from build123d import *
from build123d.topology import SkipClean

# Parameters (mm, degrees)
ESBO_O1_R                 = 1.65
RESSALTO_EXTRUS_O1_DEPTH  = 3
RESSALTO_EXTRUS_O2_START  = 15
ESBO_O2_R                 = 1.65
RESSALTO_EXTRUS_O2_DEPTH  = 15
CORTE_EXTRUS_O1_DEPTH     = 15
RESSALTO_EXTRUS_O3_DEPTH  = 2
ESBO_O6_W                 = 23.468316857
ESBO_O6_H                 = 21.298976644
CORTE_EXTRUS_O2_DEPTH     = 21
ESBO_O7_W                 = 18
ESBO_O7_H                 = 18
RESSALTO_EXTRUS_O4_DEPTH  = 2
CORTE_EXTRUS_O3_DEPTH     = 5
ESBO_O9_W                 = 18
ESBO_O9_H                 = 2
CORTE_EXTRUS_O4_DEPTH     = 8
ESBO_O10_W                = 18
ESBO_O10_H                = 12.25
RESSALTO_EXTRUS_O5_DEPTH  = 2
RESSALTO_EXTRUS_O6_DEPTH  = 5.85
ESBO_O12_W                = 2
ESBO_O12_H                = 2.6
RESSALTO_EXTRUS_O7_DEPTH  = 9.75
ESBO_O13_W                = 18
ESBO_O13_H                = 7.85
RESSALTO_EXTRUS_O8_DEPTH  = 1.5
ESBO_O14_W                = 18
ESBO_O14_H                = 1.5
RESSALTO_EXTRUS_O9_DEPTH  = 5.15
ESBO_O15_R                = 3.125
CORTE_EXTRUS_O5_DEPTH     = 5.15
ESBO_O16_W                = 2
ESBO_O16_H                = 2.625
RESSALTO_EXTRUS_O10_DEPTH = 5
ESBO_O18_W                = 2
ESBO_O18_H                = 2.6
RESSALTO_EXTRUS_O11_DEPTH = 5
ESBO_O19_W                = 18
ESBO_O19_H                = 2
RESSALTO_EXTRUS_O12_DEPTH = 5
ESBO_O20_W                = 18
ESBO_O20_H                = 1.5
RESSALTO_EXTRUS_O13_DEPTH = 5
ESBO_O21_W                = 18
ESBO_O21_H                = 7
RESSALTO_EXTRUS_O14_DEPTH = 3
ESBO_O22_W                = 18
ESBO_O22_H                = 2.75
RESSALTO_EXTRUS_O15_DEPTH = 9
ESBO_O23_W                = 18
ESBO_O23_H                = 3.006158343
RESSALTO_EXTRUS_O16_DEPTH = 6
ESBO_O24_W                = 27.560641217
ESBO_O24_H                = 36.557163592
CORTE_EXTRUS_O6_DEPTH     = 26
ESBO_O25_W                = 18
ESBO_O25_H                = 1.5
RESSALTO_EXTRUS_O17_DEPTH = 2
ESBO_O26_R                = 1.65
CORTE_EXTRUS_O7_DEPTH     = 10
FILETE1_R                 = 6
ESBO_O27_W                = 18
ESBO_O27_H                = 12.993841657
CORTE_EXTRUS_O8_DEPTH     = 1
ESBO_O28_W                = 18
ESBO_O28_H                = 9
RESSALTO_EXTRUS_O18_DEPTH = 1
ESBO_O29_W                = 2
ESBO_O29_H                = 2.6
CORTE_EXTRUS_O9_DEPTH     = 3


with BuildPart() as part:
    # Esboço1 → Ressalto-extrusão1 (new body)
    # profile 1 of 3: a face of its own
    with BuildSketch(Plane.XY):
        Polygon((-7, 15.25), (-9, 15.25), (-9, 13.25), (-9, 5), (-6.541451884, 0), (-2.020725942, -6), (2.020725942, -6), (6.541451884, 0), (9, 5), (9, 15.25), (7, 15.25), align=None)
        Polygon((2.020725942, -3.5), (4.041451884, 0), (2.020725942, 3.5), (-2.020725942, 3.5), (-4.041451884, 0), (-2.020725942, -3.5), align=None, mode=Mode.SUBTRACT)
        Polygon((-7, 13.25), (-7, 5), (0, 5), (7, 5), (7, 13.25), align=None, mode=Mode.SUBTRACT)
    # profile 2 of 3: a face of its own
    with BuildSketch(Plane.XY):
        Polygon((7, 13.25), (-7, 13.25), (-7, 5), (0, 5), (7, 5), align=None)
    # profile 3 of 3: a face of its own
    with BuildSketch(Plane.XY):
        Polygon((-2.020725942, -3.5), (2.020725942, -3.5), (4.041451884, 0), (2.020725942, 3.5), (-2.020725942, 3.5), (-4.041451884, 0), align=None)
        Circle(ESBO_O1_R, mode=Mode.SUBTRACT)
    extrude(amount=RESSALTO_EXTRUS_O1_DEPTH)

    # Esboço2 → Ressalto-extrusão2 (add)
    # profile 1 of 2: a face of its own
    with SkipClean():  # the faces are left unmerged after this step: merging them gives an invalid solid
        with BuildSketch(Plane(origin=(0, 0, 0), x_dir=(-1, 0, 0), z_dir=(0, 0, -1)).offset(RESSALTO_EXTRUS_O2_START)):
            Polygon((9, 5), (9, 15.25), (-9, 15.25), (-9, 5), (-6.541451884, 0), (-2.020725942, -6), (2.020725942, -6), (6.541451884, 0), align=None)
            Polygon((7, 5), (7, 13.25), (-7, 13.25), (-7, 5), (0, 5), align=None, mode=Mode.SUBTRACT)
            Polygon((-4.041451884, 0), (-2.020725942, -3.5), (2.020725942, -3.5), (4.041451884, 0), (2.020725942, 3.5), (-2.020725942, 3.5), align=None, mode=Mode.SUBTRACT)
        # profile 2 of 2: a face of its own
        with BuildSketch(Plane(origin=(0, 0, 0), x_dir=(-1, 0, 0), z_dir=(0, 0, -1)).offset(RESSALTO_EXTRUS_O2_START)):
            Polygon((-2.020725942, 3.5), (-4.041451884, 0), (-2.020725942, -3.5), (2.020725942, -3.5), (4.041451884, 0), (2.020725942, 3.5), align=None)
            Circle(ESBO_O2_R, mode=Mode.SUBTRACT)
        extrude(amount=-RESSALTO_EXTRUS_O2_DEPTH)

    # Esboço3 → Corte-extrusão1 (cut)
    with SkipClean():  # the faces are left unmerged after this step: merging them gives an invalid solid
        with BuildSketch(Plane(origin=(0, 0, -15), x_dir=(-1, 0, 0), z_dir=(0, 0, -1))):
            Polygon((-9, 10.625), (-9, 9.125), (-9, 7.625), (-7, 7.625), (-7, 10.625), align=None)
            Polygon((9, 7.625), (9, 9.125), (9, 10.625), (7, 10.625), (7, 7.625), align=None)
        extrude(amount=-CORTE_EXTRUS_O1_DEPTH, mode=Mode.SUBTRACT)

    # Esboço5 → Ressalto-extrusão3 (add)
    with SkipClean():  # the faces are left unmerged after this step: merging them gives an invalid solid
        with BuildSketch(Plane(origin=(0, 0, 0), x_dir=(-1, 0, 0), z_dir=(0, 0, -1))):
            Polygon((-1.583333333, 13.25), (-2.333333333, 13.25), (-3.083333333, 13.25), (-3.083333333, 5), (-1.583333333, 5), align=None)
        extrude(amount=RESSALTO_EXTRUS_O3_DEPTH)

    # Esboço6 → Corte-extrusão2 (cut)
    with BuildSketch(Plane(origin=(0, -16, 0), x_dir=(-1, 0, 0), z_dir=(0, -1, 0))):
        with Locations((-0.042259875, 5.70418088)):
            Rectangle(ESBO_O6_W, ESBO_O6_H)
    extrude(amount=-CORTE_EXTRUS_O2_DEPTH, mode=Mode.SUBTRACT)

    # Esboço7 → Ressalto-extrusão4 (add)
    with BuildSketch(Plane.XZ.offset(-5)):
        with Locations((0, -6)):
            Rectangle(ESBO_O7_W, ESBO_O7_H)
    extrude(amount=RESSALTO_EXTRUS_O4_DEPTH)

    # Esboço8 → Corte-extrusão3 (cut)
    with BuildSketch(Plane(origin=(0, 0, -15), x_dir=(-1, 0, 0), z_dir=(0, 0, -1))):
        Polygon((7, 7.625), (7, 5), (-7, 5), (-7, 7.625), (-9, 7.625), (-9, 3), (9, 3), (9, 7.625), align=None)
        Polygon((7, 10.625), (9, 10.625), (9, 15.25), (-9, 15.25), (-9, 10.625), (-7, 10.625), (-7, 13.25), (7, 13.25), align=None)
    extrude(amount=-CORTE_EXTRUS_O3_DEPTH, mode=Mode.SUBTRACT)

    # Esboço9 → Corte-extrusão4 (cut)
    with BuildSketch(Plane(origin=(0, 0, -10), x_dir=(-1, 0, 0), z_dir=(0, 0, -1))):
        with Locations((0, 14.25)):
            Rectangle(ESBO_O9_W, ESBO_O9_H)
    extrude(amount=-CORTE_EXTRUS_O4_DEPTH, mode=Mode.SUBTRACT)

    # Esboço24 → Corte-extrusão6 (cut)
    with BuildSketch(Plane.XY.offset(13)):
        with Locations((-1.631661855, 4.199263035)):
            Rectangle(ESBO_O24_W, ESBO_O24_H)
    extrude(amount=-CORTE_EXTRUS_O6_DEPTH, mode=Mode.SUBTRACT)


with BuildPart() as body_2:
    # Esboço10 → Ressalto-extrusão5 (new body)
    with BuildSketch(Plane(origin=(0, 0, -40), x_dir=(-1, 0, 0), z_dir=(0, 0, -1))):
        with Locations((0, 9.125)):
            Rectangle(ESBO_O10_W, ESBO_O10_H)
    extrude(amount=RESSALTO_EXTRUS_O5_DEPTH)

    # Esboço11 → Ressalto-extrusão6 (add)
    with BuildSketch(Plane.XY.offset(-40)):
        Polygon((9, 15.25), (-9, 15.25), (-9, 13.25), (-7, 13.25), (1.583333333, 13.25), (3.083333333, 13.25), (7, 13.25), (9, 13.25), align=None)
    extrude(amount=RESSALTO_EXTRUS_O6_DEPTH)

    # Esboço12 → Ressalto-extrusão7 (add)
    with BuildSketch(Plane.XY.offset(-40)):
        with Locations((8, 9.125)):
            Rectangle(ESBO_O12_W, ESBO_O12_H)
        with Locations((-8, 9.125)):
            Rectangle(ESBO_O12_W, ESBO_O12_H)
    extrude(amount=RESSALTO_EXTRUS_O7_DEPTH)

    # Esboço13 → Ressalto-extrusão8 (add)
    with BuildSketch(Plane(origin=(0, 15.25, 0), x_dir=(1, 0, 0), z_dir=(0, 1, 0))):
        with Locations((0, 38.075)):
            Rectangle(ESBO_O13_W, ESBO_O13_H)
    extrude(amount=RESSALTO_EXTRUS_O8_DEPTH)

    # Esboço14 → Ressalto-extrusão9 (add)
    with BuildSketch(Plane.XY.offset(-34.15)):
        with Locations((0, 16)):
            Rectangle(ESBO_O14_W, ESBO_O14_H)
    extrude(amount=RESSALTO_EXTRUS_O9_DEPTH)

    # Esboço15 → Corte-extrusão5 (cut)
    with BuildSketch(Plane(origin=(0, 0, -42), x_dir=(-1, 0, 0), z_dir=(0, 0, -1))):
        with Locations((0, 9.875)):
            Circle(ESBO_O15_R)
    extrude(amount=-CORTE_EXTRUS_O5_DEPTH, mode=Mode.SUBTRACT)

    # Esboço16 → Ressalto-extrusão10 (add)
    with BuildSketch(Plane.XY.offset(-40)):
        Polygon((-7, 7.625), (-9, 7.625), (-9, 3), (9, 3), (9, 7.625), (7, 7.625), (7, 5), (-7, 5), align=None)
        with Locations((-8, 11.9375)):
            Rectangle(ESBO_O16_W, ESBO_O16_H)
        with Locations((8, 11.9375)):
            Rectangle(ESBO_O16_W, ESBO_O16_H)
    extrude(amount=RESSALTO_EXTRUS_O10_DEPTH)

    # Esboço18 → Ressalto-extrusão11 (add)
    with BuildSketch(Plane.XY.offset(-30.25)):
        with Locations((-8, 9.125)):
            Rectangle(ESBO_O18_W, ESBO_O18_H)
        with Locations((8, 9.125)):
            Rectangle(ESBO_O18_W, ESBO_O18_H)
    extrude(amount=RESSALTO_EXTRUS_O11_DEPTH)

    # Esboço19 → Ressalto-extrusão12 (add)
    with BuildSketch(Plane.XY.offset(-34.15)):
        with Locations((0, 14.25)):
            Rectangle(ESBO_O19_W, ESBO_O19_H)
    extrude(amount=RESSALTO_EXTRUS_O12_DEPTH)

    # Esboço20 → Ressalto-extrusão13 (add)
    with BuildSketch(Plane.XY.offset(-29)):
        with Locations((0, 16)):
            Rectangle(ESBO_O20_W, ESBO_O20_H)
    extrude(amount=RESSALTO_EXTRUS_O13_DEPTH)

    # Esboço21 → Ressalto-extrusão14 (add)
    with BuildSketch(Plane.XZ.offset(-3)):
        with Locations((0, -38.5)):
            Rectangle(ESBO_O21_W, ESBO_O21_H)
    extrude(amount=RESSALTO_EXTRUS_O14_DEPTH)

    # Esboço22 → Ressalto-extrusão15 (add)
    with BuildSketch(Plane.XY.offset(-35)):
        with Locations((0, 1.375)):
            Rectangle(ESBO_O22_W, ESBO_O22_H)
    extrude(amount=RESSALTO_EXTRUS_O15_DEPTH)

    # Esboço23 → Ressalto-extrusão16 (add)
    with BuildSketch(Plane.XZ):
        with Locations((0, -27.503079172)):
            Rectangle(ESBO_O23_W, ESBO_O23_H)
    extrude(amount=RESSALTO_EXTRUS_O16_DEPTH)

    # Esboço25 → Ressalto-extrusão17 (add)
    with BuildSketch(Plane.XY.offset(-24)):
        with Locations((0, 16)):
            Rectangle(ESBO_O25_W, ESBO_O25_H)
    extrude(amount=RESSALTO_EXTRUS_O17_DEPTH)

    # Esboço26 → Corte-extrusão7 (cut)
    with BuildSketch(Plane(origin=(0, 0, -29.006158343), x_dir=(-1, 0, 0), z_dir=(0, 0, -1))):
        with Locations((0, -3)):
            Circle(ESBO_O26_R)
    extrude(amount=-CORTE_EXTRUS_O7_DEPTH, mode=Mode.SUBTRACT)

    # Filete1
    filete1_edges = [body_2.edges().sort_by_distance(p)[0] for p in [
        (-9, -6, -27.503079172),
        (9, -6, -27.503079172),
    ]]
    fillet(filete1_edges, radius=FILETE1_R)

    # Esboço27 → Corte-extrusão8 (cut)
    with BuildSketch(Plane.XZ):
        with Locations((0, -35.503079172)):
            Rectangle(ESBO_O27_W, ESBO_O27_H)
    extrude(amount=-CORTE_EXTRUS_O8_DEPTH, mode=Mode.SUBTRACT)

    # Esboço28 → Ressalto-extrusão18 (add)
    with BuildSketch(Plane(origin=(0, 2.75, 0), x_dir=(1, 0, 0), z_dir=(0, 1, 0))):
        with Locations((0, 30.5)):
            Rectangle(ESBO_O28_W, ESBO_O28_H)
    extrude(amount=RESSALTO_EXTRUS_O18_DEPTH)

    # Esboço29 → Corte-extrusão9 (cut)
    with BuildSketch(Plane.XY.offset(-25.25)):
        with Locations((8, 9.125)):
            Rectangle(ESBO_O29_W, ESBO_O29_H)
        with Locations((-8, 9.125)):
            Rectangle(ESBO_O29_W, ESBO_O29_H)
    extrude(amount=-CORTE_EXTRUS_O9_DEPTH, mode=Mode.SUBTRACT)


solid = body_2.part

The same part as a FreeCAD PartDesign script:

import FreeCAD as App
import Part
import Sketcher
Q = App.Units.Quantity


def edges_at(feature, points):
    """Names of the edges that pass closest to the given points."""
    edges = feature.Shape.Edges
    near = lambda p: min(range(len(edges)), key=lambda i: edges[i].distToShape(Part.Vertex(*p))[0])
    return sorted({f"Edge{near(p) + 1}" for p in points})


def add_polygon(sketch, points):
    """Adds a closed chain of lines whose ends are joined by coincident constraints."""
    first, n = sketch.GeometryCount, len(points)
    for a, b in zip(points, points[1:] + points[:1]):
        sketch.addGeometry(Part.LineSegment(App.Vector(*a, 0), App.Vector(*b, 0)), False)
    for i in range(n):
        sketch.addConstraint(Sketcher.Constraint("Coincident", first + i, 2, first + (i + 1) % n, 1))

doc = App.newDocument("Part")
body = doc.addObject("PartDesign::Body", "Body")

# Sketch on XY plane
sketch1 = body.newObject("Sketcher::SketchObject", "Sketch")
sketch1.AttachmentSupport = (doc.getObject("XY_Plane"), [""])
sketch1.MapMode = "FlatFace"
add_polygon(sketch1, [(-9, 15.25), (-9, 5), (-6.541452, 0), (-2.020726, -6), (2.020726, -6), (6.541452, 0), (9, 5), (9, 15.25)])  # lines 0-7
sketch1.addGeometry(Part.Circle(App.Vector(0, 0, 0), App.Vector(0, 0, 1), 1.65), False)  # 8
sketch1.addConstraint([
    Sketcher.Constraint("Vertical", 0),
    Sketcher.Constraint("Horizontal", 3),
    Sketcher.Constraint("Vertical", 6),
    Sketcher.Constraint("Horizontal", 7),
    Sketcher.Constraint("Coincident", 8, 3, -1, 1),
    Sketcher.Constraint("Symmetric", 1, 2, 4, 2, -1, 1),
    Sketcher.Constraint("Symmetric", 0, 2, 5, 2, -2),
    Sketcher.Constraint("PointOnObject", 1, 2, -1),
    Sketcher.Constraint("Equal", 2, 4),
    Sketcher.Constraint("Diameter", 8, Q("3.3 mm")),
    Sketcher.Constraint("DistanceX", 7, 2, 7, 1, Q("18 mm")),
    Sketcher.Constraint("DistanceY", -1, 1, 0, 2, Q("5 mm")),
    Sketcher.Constraint("DistanceY", 2, 2, -1, 1, Q("6 mm")),
    Sketcher.Constraint("DistanceY", 0, 2, 0, 1, Q("10.25 mm")),
    Sketcher.Constraint("DistanceX", 3, 1, 3, 2, Q("4.041452 mm")),
    Sketcher.Constraint("DistanceX", 1, 2, -1, 1, Q("6.541452 mm")),
])
pad1 = body.newObject("PartDesign::Pad", "Pad")
pad1.Profile = sketch1
pad1.Length = 3

# Sketch on XY plane
sketch2 = body.newObject("Sketcher::SketchObject", "Sketch001")
sketch2.AttachmentSupport = (doc.getObject("XY_Plane"), [""])
sketch2.MapMode = "FlatFace"
sketch2.AttachmentOffset = App.Placement(App.Vector(0, 0, -15), App.Rotation())
add_polygon(sketch2, [(-9, 5), (-9, 15.25), (9, 15.25), (9, 5), (6.541452, 0), (2.020726, -6), (-2.020726, -6), (-6.541452, 0)])  # lines 0-7
add_polygon(sketch2, [(-7, 13.25), (-7, 5), (7, 5), (7, 13.25)])  # lines 8-11
sketch2.addGeometry(Part.Circle(App.Vector(0, 0, 0), App.Vector(0, 0, 1), 1.65), False)  # 12
sketch2.addConstraint([
    Sketcher.Constraint("Vertical", 0),
    Sketcher.Constraint("Horizontal", 1),
    Sketcher.Constraint("Vertical", 2),
    Sketcher.Constraint("Horizontal", 5),
    Sketcher.Constraint("Vertical", 8),
    Sketcher.Constraint("Horizontal", 9),
    Sketcher.Constraint("Vertical", 10),
    Sketcher.Constraint("Horizontal", 11),
    Sketcher.Constraint("Coincident", 12, 3, -1, 1),
    Sketcher.Constraint("Symmetric", 3, 2, 6, 2, -1, 1),
    Sketcher.Constraint("Symmetric", 2, 2, 7, 2, -2),
    Sketcher.Constraint("PointOnObject", 3, 2, -1),
    Sketcher.Constraint("Horizontal", 7, 2, 8, 2),
    Sketcher.Constraint("Equal", 4, 6),
    Sketcher.Constraint("Diameter", 12, Q("3.3 mm")),
    Sketcher.Constraint("DistanceX", 1, 1, 1, 2, Q("18 mm")),
    Sketcher.Constraint("DistanceX", 9, 1, 9, 2, Q("14 mm")),
    Sketcher.Constraint("DistanceY", -1, 1, 2, 2, Q("5 mm")),
    Sketcher.Constraint("DistanceY", 4, 2, -1, 1, Q("6 mm")),
    Sketcher.Constraint("DistanceX", 8, 2, -1, 1, Q("7 mm")),
    Sketcher.Constraint("DistanceY", 10, 2, 1, 2, Q("2 mm")),
    Sketcher.Constraint("DistanceY", 0, 1, 0, 2, Q("10.25 mm")),
    Sketcher.Constraint("DistanceX", 5, 2, 5, 1, Q("4.041452 mm")),
    Sketcher.Constraint("DistanceX", -1, 1, 3, 2, Q("6.541452 mm")),
])
pad2 = body.newObject("PartDesign::Pad", "Pad001")
pad2.Profile = sketch2
pad2.Length = 15

# Sketch on XY plane
sketch3 = body.newObject("Sketcher::SketchObject", "Sketch002")
sketch3.AttachmentSupport = (doc.getObject("XY_Plane"), [""])
sketch3.MapMode = "FlatFace"
sketch3.AttachmentOffset = App.Placement(App.Vector(0, 0, -15), App.Rotation())
add_polygon(sketch3, [(9, 10.625), (9, 7.625), (7, 7.625), (7, 10.625)])  # lines 0-3
add_polygon(sketch3, [(-9, 7.625), (-9, 9.125), (-9, 10.625), (-7, 10.625), (-7, 7.625)])  # lines 4-8
sketch3.addConstraint([
    Sketcher.Constraint("Vertical", 0),
    Sketcher.Constraint("Horizontal", 1),
    Sketcher.Constraint("Vertical", 2),
    Sketcher.Constraint("Horizontal", 3),
    Sketcher.Constraint("Vertical", 4),
    Sketcher.Constraint("Vertical", 5),
    Sketcher.Constraint("Horizontal", 6),
    Sketcher.Constraint("Vertical", 7),
    Sketcher.Constraint("Horizontal", 8),
    Sketcher.Constraint("Symmetric", 3, 2, 5, 2, -2),
    Sketcher.Constraint("Symmetric", 1, 2, 7, 2, -2),
    Sketcher.Constraint("Equal", 4, 5),
    Sketcher.Constraint("DistanceX", 1, 2, 1, 1, Q("2 mm")),
    Sketcher.Constraint("DistanceY", 0, 2, 0, 1, Q("3 mm")),
    Sketcher.Constraint("DistanceX", -1, 1, 0, 2, Q("9 mm")),
    Sketcher.Constraint("DistanceY", -1, 1, 0, 2, Q("7.625 mm")),
])
pocket1 = body.newObject("PartDesign::Pocket", "Pocket")
pocket1.Profile = sketch3
pocket1.Length = 15
pocket1.Reversed = True

# Sketch on XY plane
sketch4 = body.newObject("Sketcher::SketchObject", "Sketch003")
sketch4.AttachmentSupport = (doc.getObject("XY_Plane"), [""])
sketch4.MapMode = "FlatFace"
add_polygon(sketch4, [(1.583333, 13.25), (3.083333, 13.25), (3.083333, 5), (1.583333, 5)])  # lines 0-3
sketch4.addConstraint([
    Sketcher.Constraint("Horizontal", 0),
    Sketcher.Constraint("Vertical", 1),
    Sketcher.Constraint("Horizontal", 2),
    Sketcher.Constraint("Vertical", 3),
    Sketcher.Constraint("DistanceX", 0, 1, 0, 2, Q("1.5 mm")),
    Sketcher.Constraint("DistanceY", -1, 1, 1, 2, Q("5 mm")),
    Sketcher.Constraint("DistanceY", 1, 2, 1, 1, Q("8.25 mm")),
    Sketcher.Constraint("DistanceX", -1, 1, 0, 2, Q("3.083333 mm")),
])
pad3 = body.newObject("PartDesign::Pad", "Pad002")
pad3.Profile = sketch4
pad3.Length = 2
pad3.Reversed = True

# Sketch on XZ plane
sketch5 = body.newObject("Sketcher::SketchObject", "Sketch004")
sketch5.AttachmentSupport = (doc.getObject("XZ_Plane"), [""])
sketch5.MapMode = "FlatFace"
sketch5.AttachmentOffset = App.Placement(App.Vector(0, 0, 16), App.Rotation())
add_polygon(sketch5, [(11.776418, -16.353669), (11.776418, 4.945307), (-11.691899, 4.945307), (-11.691899, -16.353669)])  # lines 0-3
sketch5.addConstraint([
    Sketcher.Constraint("Vertical", 0),
    Sketcher.Constraint("Horizontal", 1),
    Sketcher.Constraint("Vertical", 2),
    Sketcher.Constraint("Horizontal", 3),
    Sketcher.Constraint("DistanceX", 1, 2, -1, 1, Q("11.691899 mm")),
    Sketcher.Constraint("DistanceX", 1, 2, 1, 1, Q("23.468317 mm")),
    Sketcher.Constraint("DistanceY", 0, 1, 0, 2, Q("21.298977 mm")),
    Sketcher.Constraint("DistanceY", 2, 2, -1, 1, Q("16.353669 mm")),
])
pocket2 = body.newObject("PartDesign::Pocket", "Pocket001")
pocket2.Profile = sketch5
pocket2.Length = 21

# Sketch on XZ plane
sketch6 = body.newObject("Sketcher::SketchObject", "Sketch005")
sketch6.AttachmentSupport = (doc.getObject("XZ_Plane"), [""])
sketch6.MapMode = "FlatFace"
sketch6.AttachmentOffset = App.Placement(App.Vector(0, 0, -5), App.Rotation())
add_polygon(sketch6, [(-9, 3), (-9, -15), (9, -15), (9, 3)])  # lines 0-3
sketch6.addConstraint([
    Sketcher.Constraint("Vertical", 0),
    Sketcher.Constraint("Horizontal", 1),
    Sketcher.Constraint("Vertical", 2),
    Sketcher.Constraint("Horizontal", 3),
    Sketcher.Constraint("Equal", 3, 0),
    Sketcher.Constraint("DistanceX", 1, 1, 1, 2, Q("18 mm")),
    Sketcher.Constraint("DistanceX", 0, 2, -1, 1, Q("9 mm")),
    Sketcher.Constraint("DistanceY", 0, 2, -1, 1, Q("15 mm")),
])
pad4 = body.newObject("PartDesign::Pad", "Pad003")
pad4.Profile = sketch6
pad4.Length = 2

# Sketch on XY plane
sketch7 = body.newObject("Sketcher::SketchObject", "Sketch006")
sketch7.AttachmentSupport = (doc.getObject("XY_Plane"), [""])
sketch7.MapMode = "FlatFace"
sketch7.AttachmentOffset = App.Placement(App.Vector(0, 0, -15), App.Rotation())
add_polygon(sketch7, [(-7, 7.625), (-7, 5), (7, 5), (7, 7.625), (9, 7.625), (9, 3), (-9, 3), (-9, 7.625)])  # lines 0-7
add_polygon(sketch7, [(-7, 10.625), (-9, 10.625), (-9, 15.25), (9, 15.25), (9, 10.625), (7, 10.625), (7, 13.25), (-7, 13.25)])  # lines 8-15
sketch7.addConstraint([
    Sketcher.Constraint("Vertical", 0),
    Sketcher.Constraint("Horizontal", 1),
    Sketcher.Constraint("Vertical", 2),
    Sketcher.Constraint("Horizontal", 3),
    Sketcher.Constraint("Vertical", 4),
    Sketcher.Constraint("Horizontal", 5),
    Sketcher.Constraint("Vertical", 6),
    Sketcher.Constraint("Horizontal", 7),
    Sketcher.Constraint("Horizontal", 8),
    Sketcher.Constraint("Vertical", 9),
    Sketcher.Constraint("Horizontal", 10),
    Sketcher.Constraint("Vertical", 11),
    Sketcher.Constraint("Horizontal", 12),
    Sketcher.Constraint("Vertical", 13),
    Sketcher.Constraint("Horizontal", 14),
    Sketcher.Constraint("Vertical", 15),
    Sketcher.Constraint("Symmetric", 3, 2, 6, 2, -2),
    Sketcher.Constraint("Symmetric", 8, 2, 11, 2, -2),
    Sketcher.Constraint("Vertical", 6, 2, 8, 2),
    Sketcher.Constraint("Vertical", 2, 2, 12, 2),
    Sketcher.Constraint("Vertical", 7, 2, 14, 2),
    Sketcher.Constraint("Equal", 3, 7),
    Sketcher.Constraint("Equal", 6, 9),
    Sketcher.Constraint("Equal", 2, 13),
    Sketcher.Constraint("DistanceX", 1, 1, 1, 2, Q("14 mm")),
    Sketcher.Constraint("DistanceX", 3, 1, 3, 2, Q("2 mm")),
    Sketcher.Constraint("DistanceY", -1, 1, 0, 2, Q("5 mm")),
    Sketcher.Constraint("DistanceY", -1, 1, 4, 2, Q("3 mm")),
    Sketcher.Constraint("DistanceY", 6, 2, 8, 2, Q("3 mm")),
    Sketcher.Constraint("DistanceY", 0, 2, 0, 1, Q("2.625 mm")),
])
pocket3 = body.newObject("PartDesign::Pocket", "Pocket002")
pocket3.Profile = sketch7
pocket3.Length = 5
pocket3.Reversed = True

# Sketch on XY plane
sketch8 = body.newObject("Sketcher::SketchObject", "Sketch007")
sketch8.AttachmentSupport = (doc.getObject("XY_Plane"), [""])
sketch8.MapMode = "FlatFace"
sketch8.AttachmentOffset = App.Placement(App.Vector(0, 0, -10), App.Rotation())
add_polygon(sketch8, [(9, 15.25), (9, 13.25), (-9, 13.25), (-9, 15.25)])  # lines 0-3
sketch8.addConstraint([
    Sketcher.Constraint("Vertical", 0),
    Sketcher.Constraint("Horizontal", 1),
    Sketcher.Constraint("Vertical", 2),
    Sketcher.Constraint("Horizontal", 3),
    Sketcher.Constraint("DistanceX", 1, 2, 1, 1, Q("18 mm")),
    Sketcher.Constraint("DistanceY", 0, 2, 0, 1, Q("2 mm")),
    Sketcher.Constraint("DistanceX", -1, 1, 0, 2, Q("9 mm")),
    Sketcher.Constraint("DistanceY", -1, 1, 0, 2, Q("13.25 mm")),
])
pocket4 = body.newObject("PartDesign::Pocket", "Pocket003")
pocket4.Profile = sketch8
pocket4.Length = 8
pocket4.Reversed = True

# Sketch on XY plane
sketch9 = body.newObject("Sketcher::SketchObject", "Sketch008")
sketch9.AttachmentSupport = (doc.getObject("XY_Plane"), [""])
sketch9.MapMode = "FlatFace"
sketch9.AttachmentOffset = App.Placement(App.Vector(0, 0, 13), App.Rotation())
add_polygon(sketch9, [(-15.411982, 22.477845), (-15.411982, -14.079319), (12.148659, -14.079319), (12.148659, 22.477845)])  # lines 0-3
sketch9.addConstraint([
    Sketcher.Constraint("Vertical", 0),
    Sketcher.Constraint("Horizontal", 1),
    Sketcher.Constraint("Vertical", 2),
    Sketcher.Constraint("Horizontal", 3),
    Sketcher.Constraint("DistanceX", 1, 1, 1, 2, Q("27.560641 mm")),
    Sketcher.Constraint("DistanceY", 0, 2, 0, 1, Q("36.557164 mm")),
    Sketcher.Constraint("DistanceY", 0, 2, -1, 1, Q("14.079319 mm")),
    Sketcher.Constraint("DistanceX", -1, 1, 1, 2, Q("12.148659 mm")),
])
pocket5 = body.newObject("PartDesign::Pocket", "Pocket004")
pocket5.Profile = sketch9
pocket5.Length = 26
body2 = doc.addObject("PartDesign::Body", "Body001")

# Sketch on XY plane
sketch10 = body2.newObject("Sketcher::SketchObject", "Sketch009")
sketch10.AttachmentSupport = (doc.getObject("XY_Plane001"), [""])
sketch10.MapMode = "FlatFace"
sketch10.AttachmentOffset = App.Placement(App.Vector(0, 0, -40), App.Rotation())
add_polygon(sketch10, [(9, 15.25), (9, 3), (-9, 3), (-9, 15.25)])  # lines 0-3
sketch10.addConstraint([
    Sketcher.Constraint("Vertical", 0),
    Sketcher.Constraint("Horizontal", 1),
    Sketcher.Constraint("Vertical", 2),
    Sketcher.Constraint("Horizontal", 3),
    Sketcher.Constraint("DistanceX", 1, 2, 1, 1, Q("18 mm")),
    Sketcher.Constraint("DistanceX", -1, 1, 0, 2, Q("9 mm")),
    Sketcher.Constraint("DistanceY", -1, 1, 0, 2, Q("3 mm")),
    Sketcher.Constraint("DistanceY", 0, 2, 0, 1, Q("12.25 mm")),
])
pad5 = body2.newObject("PartDesign::Pad", "Pad004")
pad5.Profile = sketch10
pad5.Length = 2
pad5.Reversed = True

# Sketch on XY plane
sketch11 = body2.newObject("Sketcher::SketchObject", "Sketch010")
sketch11.AttachmentSupport = (doc.getObject("XY_Plane001"), [""])
sketch11.MapMode = "FlatFace"
sketch11.AttachmentOffset = App.Placement(App.Vector(0, 0, -40), App.Rotation())
add_polygon(sketch11, [(9, 15.25), (-9, 15.25), (-9, 13.25), (9, 13.25)])  # lines 0-3
sketch11.addConstraint([
    Sketcher.Constraint("Horizontal", 0),
    Sketcher.Constraint("Vertical", 1),
    Sketcher.Constraint("Horizontal", 2),
    Sketcher.Constraint("Vertical", 3),
    Sketcher.Constraint("DistanceX", 0, 2, 0, 1, Q("18 mm")),
    Sketcher.Constraint("DistanceY", 1, 2, 1, 1, Q("2 mm")),
    Sketcher.Constraint("DistanceX", 0, 2, -1, 1, Q("9 mm")),
    Sketcher.Constraint("DistanceY", -1, 1, 0, 2, Q("15.25 mm")),
])
pad6 = body2.newObject("PartDesign::Pad", "Pad005")
pad6.Profile = sketch11
pad6.Length = 5.85

# Sketch on XY plane
sketch12 = body2.newObject("Sketcher::SketchObject", "Sketch011")
sketch12.AttachmentSupport = (doc.getObject("XY_Plane001"), [""])
sketch12.MapMode = "FlatFace"
sketch12.AttachmentOffset = App.Placement(App.Vector(0, 0, -40), App.Rotation())
add_polygon(sketch12, [(7, 10.425), (7, 7.825), (9, 7.825), (9, 10.425)])  # lines 0-3
add_polygon(sketch12, [(-9, 10.425), (-9, 7.825), (-7, 7.825), (-7, 10.425)])  # lines 4-7
sketch12.addConstraint([
    Sketcher.Constraint("Vertical", 0),
    Sketcher.Constraint("Horizontal", 1),
    Sketcher.Constraint("Vertical", 2),
    Sketcher.Constraint("Horizontal", 3),
    Sketcher.Constraint("Vertical", 4),
    Sketcher.Constraint("Horizontal", 5),
    Sketcher.Constraint("Vertical", 6),
    Sketcher.Constraint("Horizontal", 7),
    Sketcher.Constraint("Symmetric", 1, 2, 4, 2, -2),
    Sketcher.Constraint("Symmetric", 3, 2, 6, 2, -2),
    Sketcher.Constraint("DistanceX", 1, 1, 1, 2, Q("2 mm")),
    Sketcher.Constraint("DistanceY", 0, 2, 0, 1, Q("2.6 mm")),
    Sketcher.Constraint("DistanceX", -1, 1, 0, 2, Q("7 mm")),
    Sketcher.Constraint("DistanceY", -1, 1, 0, 2, Q("7.825 mm")),
])
pad7 = body2.newObject("PartDesign::Pad", "Pad006")
pad7.Profile = sketch12
pad7.Length = 9.75

# Sketch on XZ plane
sketch13 = body2.newObject("Sketcher::SketchObject", "Sketch012")
sketch13.AttachmentSupport = (doc.getObject("XZ_Plane001"), [""])
sketch13.MapMode = "FlatFace"
sketch13.AttachmentOffset = App.Placement(App.Vector(0, 0, -15.25), App.Rotation())
add_polygon(sketch13, [(-9, -42), (-9, -34.15), (9, -34.15), (9, -42)])  # lines 0-3
sketch13.addConstraint([
    Sketcher.Constraint("Vertical", 0),
    Sketcher.Constraint("Horizontal", 1),
    Sketcher.Constraint("Vertical", 2),
    Sketcher.Constraint("Horizontal", 3),
    Sketcher.Constraint("DistanceX", 1, 1, 1, 2, Q("18 mm")),
    Sketcher.Constraint("DistanceX", 0, 2, -1, 1, Q("9 mm")),
    Sketcher.Constraint("DistanceY", 2, 2, -1, 1, Q("42 mm")),
    Sketcher.Constraint("DistanceY", 0, 1, 0, 2, Q("7.85 mm")),
])
pad8 = body2.newObject("PartDesign::Pad", "Pad007")
pad8.Profile = sketch13
pad8.Length = 1.5
pad8.Reversed = True

# Sketch on XY plane
sketch14 = body2.newObject("Sketcher::SketchObject", "Sketch013")
sketch14.AttachmentSupport = (doc.getObject("XY_Plane001"), [""])
sketch14.MapMode = "FlatFace"
sketch14.AttachmentOffset = App.Placement(App.Vector(0, 0, -34.15), App.Rotation())
add_polygon(sketch14, [(-9, 16.75), (-9, 15.25), (9, 15.25), (9, 16.75)])  # lines 0-3
sketch14.addConstraint([
    Sketcher.Constraint("Vertical", 0),
    Sketcher.Constraint("Horizontal", 1),
    Sketcher.Constraint("Vertical", 2),
    Sketcher.Constraint("Horizontal", 3),
    Sketcher.Constraint("DistanceX", 1, 1, 1, 2, Q("18 mm")),
    Sketcher.Constraint("DistanceY", 0, 2, 0, 1, Q("1.5 mm")),
    Sketcher.Constraint("DistanceX", 0, 2, -1, 1, Q("9 mm")),
    Sketcher.Constraint("DistanceY", -1, 1, 0, 2, Q("15.25 mm")),
])
pad9 = body2.newObject("PartDesign::Pad", "Pad008")
pad9.Profile = sketch14
pad9.Length = 5.15

# Sketch on XY plane
sketch15 = body2.newObject("Sketcher::SketchObject", "Sketch014")
sketch15.AttachmentSupport = (doc.getObject("XY_Plane001"), [""])
sketch15.MapMode = "FlatFace"
sketch15.AttachmentOffset = App.Placement(App.Vector(0, 0, -42), App.Rotation())
sketch15.addGeometry(Part.Circle(App.Vector(0, 9.875, 0), App.Vector(0, 0, 1), 3.125), False)
sketch15.addConstraint([
    Sketcher.Constraint("PointOnObject", 0, 3, -2),
    Sketcher.Constraint("Diameter", 0, Q("6.25 mm")),
    Sketcher.Constraint("DistanceY", -1, 1, 0, 3, Q("9.875 mm")),
])
pocket6 = body2.newObject("PartDesign::Pocket", "Pocket005")
pocket6.Profile = sketch15
pocket6.Length = 5.15
pocket6.Reversed = True

# Sketch on XY plane
sketch16 = body2.newObject("Sketcher::SketchObject", "Sketch015")
sketch16.AttachmentSupport = (doc.getObject("XY_Plane001"), [""])
sketch16.MapMode = "FlatFace"
sketch16.AttachmentOffset = App.Placement(App.Vector(0, 0, -40), App.Rotation())
add_polygon(sketch16, [(-7, 7.625), (-9, 7.625), (-9, 3), (9, 3), (9, 7.625), (7, 7.625), (7, 5), (-7, 5)])  # lines 0-7
add_polygon(sketch16, [(-9, 13.25), (-9, 10.625), (-7, 10.625), (-7, 13.25)])  # lines 8-11
add_polygon(sketch16, [(7, 13.25), (7, 10.625), (9, 10.625), (9, 13.25)])  # lines 12-15
sketch16.addConstraint([
    Sketcher.Constraint("Horizontal", 0),
    Sketcher.Constraint("Vertical", 1),
    Sketcher.Constraint("Horizontal", 2),
    Sketcher.Constraint("Vertical", 3),
    Sketcher.Constraint("Horizontal", 4),
    Sketcher.Constraint("Vertical", 5),
    Sketcher.Constraint("Horizontal", 6),
    Sketcher.Constraint("Vertical", 7),
    Sketcher.Constraint("Vertical", 8),
    Sketcher.Constraint("Horizontal", 9),
    Sketcher.Constraint("Vertical", 10),
    Sketcher.Constraint("Horizontal", 11),
    Sketcher.Constraint("Vertical", 12),
    Sketcher.Constraint("Horizontal", 13),
    Sketcher.Constraint("Vertical", 14),
    Sketcher.Constraint("Horizontal", 15),
    Sketcher.Constraint("Symmetric", 0, 2, 3, 2, -2),
    Sketcher.Constraint("Symmetric", 9, 2, 12, 2, -2),
    Sketcher.Constraint("Symmetric", 11, 2, 14, 2, -2),
    Sketcher.Constraint("Vertical", 1, 2, 8, 2),
    Sketcher.Constraint("Vertical", 7, 2, 9, 2),
    Sketcher.Constraint("Vertical", 5, 2, 12, 2),
    Sketcher.Constraint("Equal", 7, 8),
    Sketcher.Constraint("DistanceX", 0, 2, 0, 1, Q("2 mm")),
    Sketcher.Constraint("DistanceX", 2, 1, 2, 2, Q("18 mm")),
    Sketcher.Constraint("DistanceY", -1, 1, 1, 2, Q("3 mm")),
    Sketcher.Constraint("DistanceY", -1, 1, 5, 2, Q("5 mm")),
    Sketcher.Constraint("DistanceY", 0, 2, 8, 2, Q("3 mm")),
    Sketcher.Constraint("DistanceY", 1, 2, 1, 1, Q("4.625 mm")),
])
pad10 = body2.newObject("PartDesign::Pad", "Pad009")
pad10.Profile = sketch16
pad10.Length = 5

# Sketch on XY plane
sketch17 = body2.newObject("Sketcher::SketchObject", "Sketch016")
sketch17.AttachmentSupport = (doc.getObject("XY_Plane001"), [""])
sketch17.MapMode = "FlatFace"
sketch17.AttachmentOffset = App.Placement(App.Vector(0, 0, -30.25), App.Rotation())
add_polygon(sketch17, [(-9, 10.425), (-9, 7.825), (-7, 7.825), (-7, 10.425)])  # lines 0-3
add_polygon(sketch17, [(7, 10.425), (7, 7.825), (9, 7.825), (9, 10.425)])  # lines 4-7
sketch17.addConstraint([
    Sketcher.Constraint("Vertical", 0),
    Sketcher.Constraint("Horizontal", 1),
    Sketcher.Constraint("Vertical", 2),
    Sketcher.Constraint("Horizontal", 3),
    Sketcher.Constraint("Vertical", 4),
    Sketcher.Constraint("Horizontal", 5),
    Sketcher.Constraint("Vertical", 6),
    Sketcher.Constraint("Horizontal", 7),
    Sketcher.Constraint("Symmetric", 1, 2, 4, 2, -2),
    Sketcher.Constraint("Symmetric", 3, 2, 6, 2, -2),
    Sketcher.Constraint("DistanceX", 1, 1, 1, 2, Q("2 mm")),
    Sketcher.Constraint("DistanceY", 0, 2, 0, 1, Q("2.6 mm")),
    Sketcher.Constraint("DistanceX", 0, 2, -1, 1, Q("9 mm")),
    Sketcher.Constraint("DistanceY", -1, 1, 0, 2, Q("7.825 mm")),
])
pad11 = body2.newObject("PartDesign::Pad", "Pad010")
pad11.Profile = sketch17
pad11.Length = 5

# Sketch on XY plane
sketch18 = body2.newObject("Sketcher::SketchObject", "Sketch017")
sketch18.AttachmentSupport = (doc.getObject("XY_Plane001"), [""])
sketch18.MapMode = "FlatFace"
sketch18.AttachmentOffset = App.Placement(App.Vector(0, 0, -34.15), App.Rotation())
add_polygon(sketch18, [(-9, 15.25), (-9, 13.25), (9, 13.25), (9, 15.25)])  # lines 0-3
sketch18.addConstraint([
    Sketcher.Constraint("Vertical", 0),
    Sketcher.Constraint("Horizontal", 1),
    Sketcher.Constraint("Vertical", 2),
    Sketcher.Constraint("Horizontal", 3),
    Sketcher.Constraint("DistanceX", 1, 1, 1, 2, Q("18 mm")),
    Sketcher.Constraint("DistanceY", 0, 2, 0, 1, Q("2 mm")),
    Sketcher.Constraint("DistanceX", 0, 2, -1, 1, Q("9 mm")),
    Sketcher.Constraint("DistanceY", -1, 1, 0, 2, Q("13.25 mm")),
])
pad12 = body2.newObject("PartDesign::Pad", "Pad011")
pad12.Profile = sketch18
pad12.Length = 5

# Sketch on XY plane
sketch19 = body2.newObject("Sketcher::SketchObject", "Sketch018")
sketch19.AttachmentSupport = (doc.getObject("XY_Plane001"), [""])
sketch19.MapMode = "FlatFace"
sketch19.AttachmentOffset = App.Placement(App.Vector(0, 0, -29), App.Rotation())
add_polygon(sketch19, [(-9, 16.75), (-9, 15.25), (9, 15.25), (9, 16.75)])  # lines 0-3
sketch19.addConstraint([
    Sketcher.Constraint("Vertical", 0),
    Sketcher.Constraint("Horizontal", 1),
    Sketcher.Constraint("Vertical", 2),
    Sketcher.Constraint("Horizontal", 3),
    Sketcher.Constraint("DistanceX", 1, 1, 1, 2, Q("18 mm")),
    Sketcher.Constraint("DistanceY", 0, 2, 0, 1, Q("1.5 mm")),
    Sketcher.Constraint("DistanceX", 0, 2, -1, 1, Q("9 mm")),
    Sketcher.Constraint("DistanceY", -1, 1, 0, 2, Q("15.25 mm")),
])
pad13 = body2.newObject("PartDesign::Pad", "Pad012")
pad13.Profile = sketch19
pad13.Length = 5

# Sketch on XZ plane
sketch20 = body2.newObject("Sketcher::SketchObject", "Sketch019")
sketch20.AttachmentSupport = (doc.getObject("XZ_Plane001"), [""])
sketch20.MapMode = "FlatFace"
sketch20.AttachmentOffset = App.Placement(App.Vector(0, 0, -3), App.Rotation())
add_polygon(sketch20, [(-9, -35), (-9, -42), (9, -42), (9, -35)])  # lines 0-3
sketch20.addConstraint([
    Sketcher.Constraint("Vertical", 0),
    Sketcher.Constraint("Horizontal", 1),
    Sketcher.Constraint("Vertical", 2),
    Sketcher.Constraint("Horizontal", 3),
    Sketcher.Constraint("DistanceX", 1, 1, 1, 2, Q("18 mm")),
    Sketcher.Constraint("DistanceY", 0, 2, 0, 1, Q("7 mm")),
    Sketcher.Constraint("DistanceX", 0, 2, -1, 1, Q("9 mm")),
    Sketcher.Constraint("DistanceY", 0, 2, -1, 1, Q("42 mm")),
])
pad14 = body2.newObject("PartDesign::Pad", "Pad013")
pad14.Profile = sketch20
pad14.Length = 3

# Sketch on XY plane
sketch21 = body2.newObject("Sketcher::SketchObject", "Sketch020")
sketch21.AttachmentSupport = (doc.getObject("XY_Plane001"), [""])
sketch21.MapMode = "FlatFace"
sketch21.AttachmentOffset = App.Placement(App.Vector(0, 0, -35), App.Rotation())
add_polygon(sketch21, [(-9, 2.75), (-9, 0), (9, 0), (9, 2.75)])  # lines 0-3
sketch21.addConstraint([
    Sketcher.Constraint("Vertical", 0),
    Sketcher.Constraint("Horizontal", 1),
    Sketcher.Constraint("Vertical", 2),
    Sketcher.Constraint("Horizontal", 3),
    Sketcher.Constraint("Symmetric", 0, 2, 1, 2, -1, 1),
    Sketcher.Constraint("DistanceX", 1, 1, 1, 2, Q("18 mm")),
    Sketcher.Constraint("DistanceY", 0, 2, 0, 1, Q("2.75 mm")),
])
pad15 = body2.newObject("PartDesign::Pad", "Pad014")
pad15.Profile = sketch21
pad15.Length = 9

# Sketch on XZ plane
sketch22 = body2.newObject("Sketcher::SketchObject", "Sketch021")
sketch22.AttachmentSupport = (doc.getObject("XZ_Plane001"), [""])
sketch22.MapMode = "FlatFace"
add_polygon(sketch22, [(-9, -26), (-9, -29.006158), (9, -29.006158), (9, -26)])  # lines 0-3
sketch22.addConstraint([
    Sketcher.Constraint("Vertical", 0),
    Sketcher.Constraint("Horizontal", 1),
    Sketcher.Constraint("Vertical", 2),
    Sketcher.Constraint("Horizontal", 3),
    Sketcher.Constraint("DistanceX", 1, 1, 1, 2, Q("18 mm")),
    Sketcher.Constraint("DistanceX", 0, 2, -1, 1, Q("9 mm")),
    Sketcher.Constraint("DistanceY", 2, 2, -1, 1, Q("26 mm")),
    Sketcher.Constraint("DistanceY", 0, 2, 0, 1, Q("3.006158 mm")),
])
pad16 = body2.newObject("PartDesign::Pad", "Pad015")
pad16.Profile = sketch22
pad16.Length = 6

# Sketch on XY plane
sketch23 = body2.newObject("Sketcher::SketchObject", "Sketch022")
sketch23.AttachmentSupport = (doc.getObject("XY_Plane001"), [""])
sketch23.MapMode = "FlatFace"
sketch23.AttachmentOffset = App.Placement(App.Vector(0, 0, -24), App.Rotation())
add_polygon(sketch23, [(-9, 16.75), (-9, 15.25), (9, 15.25), (9, 16.75)])  # lines 0-3
sketch23.addConstraint([
    Sketcher.Constraint("Vertical", 0),
    Sketcher.Constraint("Horizontal", 1),
    Sketcher.Constraint("Vertical", 2),
    Sketcher.Constraint("Horizontal", 3),
    Sketcher.Constraint("DistanceX", 1, 1, 1, 2, Q("18 mm")),
    Sketcher.Constraint("DistanceY", 0, 2, 0, 1, Q("1.5 mm")),
    Sketcher.Constraint("DistanceX", 0, 2, -1, 1, Q("9 mm")),
    Sketcher.Constraint("DistanceY", -1, 1, 0, 2, Q("15.25 mm")),
])
pad17 = body2.newObject("PartDesign::Pad", "Pad016")
pad17.Profile = sketch23
pad17.Length = 2

# Sketch on XY plane
sketch24 = body2.newObject("Sketcher::SketchObject", "Sketch023")
sketch24.AttachmentSupport = (doc.getObject("XY_Plane001"), [""])
sketch24.MapMode = "FlatFace"
sketch24.AttachmentOffset = App.Placement(App.Vector(0, 0, -29.006158), App.Rotation())
sketch24.addGeometry(Part.Circle(App.Vector(0, -3, 0), App.Vector(0, 0, 1), 1.65), False)
sketch24.addConstraint([
    Sketcher.Constraint("PointOnObject", 0, 3, -2),
    Sketcher.Constraint("Diameter", 0, Q("3.3 mm")),
    Sketcher.Constraint("DistanceY", 0, 3, -1, 1, Q("3 mm")),
])
pocket7 = body2.newObject("PartDesign::Pocket", "Pocket006")
pocket7.Profile = sketch24
pocket7.Length = 10
pocket7.Reversed = True
doc.recompute()

fillet = body2.newObject("PartDesign::Fillet", "Fillet")
fillet.Base = (pocket7, edges_at(pocket7, [(-9, -6, -27.503), (9, -6, -27.503)]))
fillet.Radius = 6

# Sketch on XZ plane
sketch25 = body2.newObject("Sketcher::SketchObject", "Sketch024")
sketch25.AttachmentSupport = (doc.getObject("XZ_Plane001"), [""])
sketch25.MapMode = "FlatFace"
add_polygon(sketch25, [(-9, -29.006158), (-9, -42), (9, -42), (9, -29.006158)])  # lines 0-3
sketch25.addConstraint([
    Sketcher.Constraint("Vertical", 0),
    Sketcher.Constraint("Horizontal", 1),
    Sketcher.Constraint("Vertical", 2),
    Sketcher.Constraint("Horizontal", 3),
    Sketcher.Constraint("DistanceX", 1, 1, 1, 2, Q("18 mm")),
    Sketcher.Constraint("DistanceX", 0, 2, -1, 1, Q("9 mm")),
    Sketcher.Constraint("DistanceY", 0, 2, -1, 1, Q("42 mm")),
    Sketcher.Constraint("DistanceY", 0, 2, 0, 1, Q("12.993842 mm")),
])
pocket8 = body2.newObject("PartDesign::Pocket", "Pocket007")
pocket8.Profile = sketch25
pocket8.Length = 1

# Sketch on XZ plane
sketch26 = body2.newObject("Sketcher::SketchObject", "Sketch025")
sketch26.AttachmentSupport = (doc.getObject("XZ_Plane001"), [""])
sketch26.MapMode = "FlatFace"
sketch26.AttachmentOffset = App.Placement(App.Vector(0, 0, -2.75), App.Rotation())
add_polygon(sketch26, [(-9, -35), (-9, -26), (9, -26), (9, -35)])  # lines 0-3
sketch26.addConstraint([
    Sketcher.Constraint("Vertical", 0),
    Sketcher.Constraint("Horizontal", 1),
    Sketcher.Constraint("Vertical", 2),
    Sketcher.Constraint("Horizontal", 3),
    Sketcher.Constraint("DistanceX", 1, 1, 1, 2, Q("18 mm")),
    Sketcher.Constraint("DistanceY", 0, 1, 0, 2, Q("9 mm")),
    Sketcher.Constraint("DistanceX", 0, 2, -1, 1, Q("9 mm")),
    Sketcher.Constraint("DistanceY", 0, 2, -1, 1, Q("26 mm")),
])
pad18 = body2.newObject("PartDesign::Pad", "Pad017")
pad18.Profile = sketch26
pad18.Length = 1
pad18.Reversed = True

# Sketch on XY plane
sketch27 = body2.newObject("Sketcher::SketchObject", "Sketch026")
sketch27.AttachmentSupport = (doc.getObject("XY_Plane001"), [""])
sketch27.MapMode = "FlatFace"
sketch27.AttachmentOffset = App.Placement(App.Vector(0, 0, -25.25), App.Rotation())
add_polygon(sketch27, [(7, 10.425), (7, 7.825), (9, 7.825), (9, 10.425)])  # lines 0-3
add_polygon(sketch27, [(-9, 10.425), (-9, 7.825), (-7, 7.825), (-7, 10.425)])  # lines 4-7
sketch27.addConstraint([
    Sketcher.Constraint("Vertical", 0),
    Sketcher.Constraint("Horizontal", 1),
    Sketcher.Constraint("Vertical", 2),
    Sketcher.Constraint("Horizontal", 3),
    Sketcher.Constraint("Vertical", 4),
    Sketcher.Constraint("Horizontal", 5),
    Sketcher.Constraint("Vertical", 6),
    Sketcher.Constraint("Horizontal", 7),
    Sketcher.Constraint("Symmetric", 1, 2, 4, 2, -2),
    Sketcher.Constraint("Symmetric", 3, 2, 6, 2, -2),
    Sketcher.Constraint("DistanceX", 1, 1, 1, 2, Q("2 mm")),
    Sketcher.Constraint("DistanceY", 0, 2, 0, 1, Q("2.6 mm")),
    Sketcher.Constraint("DistanceX", -1, 1, 0, 2, Q("7 mm")),
    Sketcher.Constraint("DistanceY", -1, 1, 0, 2, Q("7.825 mm")),
])
pocket9 = body2.newObject("PartDesign::Pocket", "Pocket008")
pocket9.Profile = sketch27
pocket9.Length = 3

doc.recompute()
